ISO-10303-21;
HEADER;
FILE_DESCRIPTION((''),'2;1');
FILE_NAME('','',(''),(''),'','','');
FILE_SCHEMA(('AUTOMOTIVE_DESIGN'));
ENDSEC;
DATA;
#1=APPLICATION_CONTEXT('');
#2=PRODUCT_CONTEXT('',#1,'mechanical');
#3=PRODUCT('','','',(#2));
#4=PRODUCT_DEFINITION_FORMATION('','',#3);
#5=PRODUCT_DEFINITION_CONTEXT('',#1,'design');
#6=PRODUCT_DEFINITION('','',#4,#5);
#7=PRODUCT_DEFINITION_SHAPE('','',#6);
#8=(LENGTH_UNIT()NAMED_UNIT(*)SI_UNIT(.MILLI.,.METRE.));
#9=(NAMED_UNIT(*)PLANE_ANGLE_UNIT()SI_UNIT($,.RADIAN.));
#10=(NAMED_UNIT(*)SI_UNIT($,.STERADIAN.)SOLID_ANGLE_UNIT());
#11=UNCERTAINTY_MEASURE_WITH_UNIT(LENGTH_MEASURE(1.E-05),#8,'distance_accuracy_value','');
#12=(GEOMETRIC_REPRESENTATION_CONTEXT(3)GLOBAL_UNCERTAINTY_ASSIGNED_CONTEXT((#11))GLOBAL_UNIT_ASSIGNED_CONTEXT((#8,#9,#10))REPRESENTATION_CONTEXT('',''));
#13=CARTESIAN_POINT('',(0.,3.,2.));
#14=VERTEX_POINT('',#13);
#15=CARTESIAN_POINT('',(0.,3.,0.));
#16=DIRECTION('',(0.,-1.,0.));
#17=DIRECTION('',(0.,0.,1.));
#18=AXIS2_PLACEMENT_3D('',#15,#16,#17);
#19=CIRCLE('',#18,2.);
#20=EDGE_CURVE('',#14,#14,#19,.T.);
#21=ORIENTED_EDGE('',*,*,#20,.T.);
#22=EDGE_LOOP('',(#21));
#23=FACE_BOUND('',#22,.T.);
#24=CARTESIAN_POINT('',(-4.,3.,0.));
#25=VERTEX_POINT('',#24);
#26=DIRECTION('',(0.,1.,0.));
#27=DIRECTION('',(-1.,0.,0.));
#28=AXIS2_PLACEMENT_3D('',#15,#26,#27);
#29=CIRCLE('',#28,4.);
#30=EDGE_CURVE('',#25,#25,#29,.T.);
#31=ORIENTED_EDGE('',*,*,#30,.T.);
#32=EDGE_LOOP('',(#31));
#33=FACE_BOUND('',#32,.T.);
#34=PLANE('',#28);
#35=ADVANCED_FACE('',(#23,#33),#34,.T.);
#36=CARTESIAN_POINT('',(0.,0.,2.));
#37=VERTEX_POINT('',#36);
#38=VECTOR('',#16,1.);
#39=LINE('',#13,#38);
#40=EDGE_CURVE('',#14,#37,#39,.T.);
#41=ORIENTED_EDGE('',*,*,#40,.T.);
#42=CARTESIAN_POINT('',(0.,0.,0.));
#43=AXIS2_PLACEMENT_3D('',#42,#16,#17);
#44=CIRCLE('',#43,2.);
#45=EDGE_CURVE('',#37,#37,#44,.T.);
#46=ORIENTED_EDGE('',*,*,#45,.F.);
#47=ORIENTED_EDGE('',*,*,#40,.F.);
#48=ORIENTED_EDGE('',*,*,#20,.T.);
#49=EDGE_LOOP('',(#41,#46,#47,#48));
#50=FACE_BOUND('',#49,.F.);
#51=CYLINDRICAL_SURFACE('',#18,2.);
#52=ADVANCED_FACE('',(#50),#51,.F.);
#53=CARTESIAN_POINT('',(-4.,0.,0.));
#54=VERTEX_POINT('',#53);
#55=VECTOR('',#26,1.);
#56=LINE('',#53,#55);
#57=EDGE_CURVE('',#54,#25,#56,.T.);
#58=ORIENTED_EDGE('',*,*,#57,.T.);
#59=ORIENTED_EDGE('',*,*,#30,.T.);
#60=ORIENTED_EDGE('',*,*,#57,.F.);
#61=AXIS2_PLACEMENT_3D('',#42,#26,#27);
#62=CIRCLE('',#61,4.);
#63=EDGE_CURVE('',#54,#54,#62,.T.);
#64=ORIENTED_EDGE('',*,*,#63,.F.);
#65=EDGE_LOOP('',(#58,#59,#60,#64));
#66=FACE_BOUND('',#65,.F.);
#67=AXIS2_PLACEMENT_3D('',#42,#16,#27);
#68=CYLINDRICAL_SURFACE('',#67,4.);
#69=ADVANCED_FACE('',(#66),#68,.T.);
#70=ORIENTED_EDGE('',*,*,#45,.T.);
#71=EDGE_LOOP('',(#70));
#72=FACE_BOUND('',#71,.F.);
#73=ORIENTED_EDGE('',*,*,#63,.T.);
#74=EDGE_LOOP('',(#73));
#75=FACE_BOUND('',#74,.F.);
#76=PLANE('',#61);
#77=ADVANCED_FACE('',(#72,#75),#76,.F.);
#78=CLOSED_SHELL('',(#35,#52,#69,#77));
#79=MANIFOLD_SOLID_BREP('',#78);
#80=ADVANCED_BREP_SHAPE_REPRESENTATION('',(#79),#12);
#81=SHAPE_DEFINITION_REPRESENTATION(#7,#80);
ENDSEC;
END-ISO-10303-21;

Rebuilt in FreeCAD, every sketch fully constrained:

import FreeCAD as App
import Part
import Sketcher

V = App.Vector
Q = App.Units.Quantity

doc = App.newDocument("Part")
params = doc.addObject("Spreadsheet::Sheet", "Params")
for row, (alias, value) in enumerate([
    ("sketch1_diameter", "8 mm"),
    ("pad1_length", "3 mm"),
    ("sketch2_diameter", "4 mm"),
    ("hole_diameter", "4 mm"),
], start=1):
    params.set(f"A{row}", alias)
    params.set(f"B{row}", "=" + value)
    params.setAlias(f"B{row}", alias)

body = doc.addObject("PartDesign::Body", "Body")

# Sketch on XZ plane
sketch1 = body.newObject("Sketcher::SketchObject", "Sketch")
sketch1.AttachmentSupport = (doc.getObject("XZ_Plane"), [""])
sketch1.MapMode = "FlatFace"
sketch1.addGeometry(Part.Circle(V(0, 0, 0), V(0, 0, 1), 4), False)
sketch1.addConstraint(Sketcher.Constraint("Coincident", 0, 3, -1, 1))
sketch1.addConstraint(Sketcher.Constraint("Diameter", 0, Q("8 mm")))
sketch1.setExpression("Constraints[1]", "Params.sketch1_diameter")
pad1 = body.newObject("PartDesign::Pad", "Pad")
pad1.Profile = sketch1
pad1.setExpression("Length", "Params.pad1_length")
pad1.Reversed = True

# Sketch on XZ plane
sketch2 = body.newObject("Sketcher::SketchObject", "Sketch001")
sketch2.AttachmentSupport = (doc.getObject("XZ_Plane"), [""])
sketch2.MapMode = "FlatFace"
sketch2.AttachmentOffset = App.Placement(V(0, 0, -3), App.Rotation())
sketch2.addGeometry(Part.Circle(V(0, 0, 0), V(0, 0, 1), 2), False)
sketch2.addConstraint(Sketcher.Constraint("Coincident", 0, 3, -1, 1))
sketch2.addConstraint(Sketcher.Constraint("Diameter", 0, Q("4 mm")))
sketch2.setExpression("Constraints[1]", "Params.sketch2_diameter")
doc.recompute()
hole = body.newObject("PartDesign::Hole", "Hole")
hole.Profile = sketch2
hole.ThreadType = "None"
hole.setExpression("Diameter", "Params.hole_diameter")
hole.DepthType = "ThroughAll"
hole.Reversed = True

doc.recompute()
